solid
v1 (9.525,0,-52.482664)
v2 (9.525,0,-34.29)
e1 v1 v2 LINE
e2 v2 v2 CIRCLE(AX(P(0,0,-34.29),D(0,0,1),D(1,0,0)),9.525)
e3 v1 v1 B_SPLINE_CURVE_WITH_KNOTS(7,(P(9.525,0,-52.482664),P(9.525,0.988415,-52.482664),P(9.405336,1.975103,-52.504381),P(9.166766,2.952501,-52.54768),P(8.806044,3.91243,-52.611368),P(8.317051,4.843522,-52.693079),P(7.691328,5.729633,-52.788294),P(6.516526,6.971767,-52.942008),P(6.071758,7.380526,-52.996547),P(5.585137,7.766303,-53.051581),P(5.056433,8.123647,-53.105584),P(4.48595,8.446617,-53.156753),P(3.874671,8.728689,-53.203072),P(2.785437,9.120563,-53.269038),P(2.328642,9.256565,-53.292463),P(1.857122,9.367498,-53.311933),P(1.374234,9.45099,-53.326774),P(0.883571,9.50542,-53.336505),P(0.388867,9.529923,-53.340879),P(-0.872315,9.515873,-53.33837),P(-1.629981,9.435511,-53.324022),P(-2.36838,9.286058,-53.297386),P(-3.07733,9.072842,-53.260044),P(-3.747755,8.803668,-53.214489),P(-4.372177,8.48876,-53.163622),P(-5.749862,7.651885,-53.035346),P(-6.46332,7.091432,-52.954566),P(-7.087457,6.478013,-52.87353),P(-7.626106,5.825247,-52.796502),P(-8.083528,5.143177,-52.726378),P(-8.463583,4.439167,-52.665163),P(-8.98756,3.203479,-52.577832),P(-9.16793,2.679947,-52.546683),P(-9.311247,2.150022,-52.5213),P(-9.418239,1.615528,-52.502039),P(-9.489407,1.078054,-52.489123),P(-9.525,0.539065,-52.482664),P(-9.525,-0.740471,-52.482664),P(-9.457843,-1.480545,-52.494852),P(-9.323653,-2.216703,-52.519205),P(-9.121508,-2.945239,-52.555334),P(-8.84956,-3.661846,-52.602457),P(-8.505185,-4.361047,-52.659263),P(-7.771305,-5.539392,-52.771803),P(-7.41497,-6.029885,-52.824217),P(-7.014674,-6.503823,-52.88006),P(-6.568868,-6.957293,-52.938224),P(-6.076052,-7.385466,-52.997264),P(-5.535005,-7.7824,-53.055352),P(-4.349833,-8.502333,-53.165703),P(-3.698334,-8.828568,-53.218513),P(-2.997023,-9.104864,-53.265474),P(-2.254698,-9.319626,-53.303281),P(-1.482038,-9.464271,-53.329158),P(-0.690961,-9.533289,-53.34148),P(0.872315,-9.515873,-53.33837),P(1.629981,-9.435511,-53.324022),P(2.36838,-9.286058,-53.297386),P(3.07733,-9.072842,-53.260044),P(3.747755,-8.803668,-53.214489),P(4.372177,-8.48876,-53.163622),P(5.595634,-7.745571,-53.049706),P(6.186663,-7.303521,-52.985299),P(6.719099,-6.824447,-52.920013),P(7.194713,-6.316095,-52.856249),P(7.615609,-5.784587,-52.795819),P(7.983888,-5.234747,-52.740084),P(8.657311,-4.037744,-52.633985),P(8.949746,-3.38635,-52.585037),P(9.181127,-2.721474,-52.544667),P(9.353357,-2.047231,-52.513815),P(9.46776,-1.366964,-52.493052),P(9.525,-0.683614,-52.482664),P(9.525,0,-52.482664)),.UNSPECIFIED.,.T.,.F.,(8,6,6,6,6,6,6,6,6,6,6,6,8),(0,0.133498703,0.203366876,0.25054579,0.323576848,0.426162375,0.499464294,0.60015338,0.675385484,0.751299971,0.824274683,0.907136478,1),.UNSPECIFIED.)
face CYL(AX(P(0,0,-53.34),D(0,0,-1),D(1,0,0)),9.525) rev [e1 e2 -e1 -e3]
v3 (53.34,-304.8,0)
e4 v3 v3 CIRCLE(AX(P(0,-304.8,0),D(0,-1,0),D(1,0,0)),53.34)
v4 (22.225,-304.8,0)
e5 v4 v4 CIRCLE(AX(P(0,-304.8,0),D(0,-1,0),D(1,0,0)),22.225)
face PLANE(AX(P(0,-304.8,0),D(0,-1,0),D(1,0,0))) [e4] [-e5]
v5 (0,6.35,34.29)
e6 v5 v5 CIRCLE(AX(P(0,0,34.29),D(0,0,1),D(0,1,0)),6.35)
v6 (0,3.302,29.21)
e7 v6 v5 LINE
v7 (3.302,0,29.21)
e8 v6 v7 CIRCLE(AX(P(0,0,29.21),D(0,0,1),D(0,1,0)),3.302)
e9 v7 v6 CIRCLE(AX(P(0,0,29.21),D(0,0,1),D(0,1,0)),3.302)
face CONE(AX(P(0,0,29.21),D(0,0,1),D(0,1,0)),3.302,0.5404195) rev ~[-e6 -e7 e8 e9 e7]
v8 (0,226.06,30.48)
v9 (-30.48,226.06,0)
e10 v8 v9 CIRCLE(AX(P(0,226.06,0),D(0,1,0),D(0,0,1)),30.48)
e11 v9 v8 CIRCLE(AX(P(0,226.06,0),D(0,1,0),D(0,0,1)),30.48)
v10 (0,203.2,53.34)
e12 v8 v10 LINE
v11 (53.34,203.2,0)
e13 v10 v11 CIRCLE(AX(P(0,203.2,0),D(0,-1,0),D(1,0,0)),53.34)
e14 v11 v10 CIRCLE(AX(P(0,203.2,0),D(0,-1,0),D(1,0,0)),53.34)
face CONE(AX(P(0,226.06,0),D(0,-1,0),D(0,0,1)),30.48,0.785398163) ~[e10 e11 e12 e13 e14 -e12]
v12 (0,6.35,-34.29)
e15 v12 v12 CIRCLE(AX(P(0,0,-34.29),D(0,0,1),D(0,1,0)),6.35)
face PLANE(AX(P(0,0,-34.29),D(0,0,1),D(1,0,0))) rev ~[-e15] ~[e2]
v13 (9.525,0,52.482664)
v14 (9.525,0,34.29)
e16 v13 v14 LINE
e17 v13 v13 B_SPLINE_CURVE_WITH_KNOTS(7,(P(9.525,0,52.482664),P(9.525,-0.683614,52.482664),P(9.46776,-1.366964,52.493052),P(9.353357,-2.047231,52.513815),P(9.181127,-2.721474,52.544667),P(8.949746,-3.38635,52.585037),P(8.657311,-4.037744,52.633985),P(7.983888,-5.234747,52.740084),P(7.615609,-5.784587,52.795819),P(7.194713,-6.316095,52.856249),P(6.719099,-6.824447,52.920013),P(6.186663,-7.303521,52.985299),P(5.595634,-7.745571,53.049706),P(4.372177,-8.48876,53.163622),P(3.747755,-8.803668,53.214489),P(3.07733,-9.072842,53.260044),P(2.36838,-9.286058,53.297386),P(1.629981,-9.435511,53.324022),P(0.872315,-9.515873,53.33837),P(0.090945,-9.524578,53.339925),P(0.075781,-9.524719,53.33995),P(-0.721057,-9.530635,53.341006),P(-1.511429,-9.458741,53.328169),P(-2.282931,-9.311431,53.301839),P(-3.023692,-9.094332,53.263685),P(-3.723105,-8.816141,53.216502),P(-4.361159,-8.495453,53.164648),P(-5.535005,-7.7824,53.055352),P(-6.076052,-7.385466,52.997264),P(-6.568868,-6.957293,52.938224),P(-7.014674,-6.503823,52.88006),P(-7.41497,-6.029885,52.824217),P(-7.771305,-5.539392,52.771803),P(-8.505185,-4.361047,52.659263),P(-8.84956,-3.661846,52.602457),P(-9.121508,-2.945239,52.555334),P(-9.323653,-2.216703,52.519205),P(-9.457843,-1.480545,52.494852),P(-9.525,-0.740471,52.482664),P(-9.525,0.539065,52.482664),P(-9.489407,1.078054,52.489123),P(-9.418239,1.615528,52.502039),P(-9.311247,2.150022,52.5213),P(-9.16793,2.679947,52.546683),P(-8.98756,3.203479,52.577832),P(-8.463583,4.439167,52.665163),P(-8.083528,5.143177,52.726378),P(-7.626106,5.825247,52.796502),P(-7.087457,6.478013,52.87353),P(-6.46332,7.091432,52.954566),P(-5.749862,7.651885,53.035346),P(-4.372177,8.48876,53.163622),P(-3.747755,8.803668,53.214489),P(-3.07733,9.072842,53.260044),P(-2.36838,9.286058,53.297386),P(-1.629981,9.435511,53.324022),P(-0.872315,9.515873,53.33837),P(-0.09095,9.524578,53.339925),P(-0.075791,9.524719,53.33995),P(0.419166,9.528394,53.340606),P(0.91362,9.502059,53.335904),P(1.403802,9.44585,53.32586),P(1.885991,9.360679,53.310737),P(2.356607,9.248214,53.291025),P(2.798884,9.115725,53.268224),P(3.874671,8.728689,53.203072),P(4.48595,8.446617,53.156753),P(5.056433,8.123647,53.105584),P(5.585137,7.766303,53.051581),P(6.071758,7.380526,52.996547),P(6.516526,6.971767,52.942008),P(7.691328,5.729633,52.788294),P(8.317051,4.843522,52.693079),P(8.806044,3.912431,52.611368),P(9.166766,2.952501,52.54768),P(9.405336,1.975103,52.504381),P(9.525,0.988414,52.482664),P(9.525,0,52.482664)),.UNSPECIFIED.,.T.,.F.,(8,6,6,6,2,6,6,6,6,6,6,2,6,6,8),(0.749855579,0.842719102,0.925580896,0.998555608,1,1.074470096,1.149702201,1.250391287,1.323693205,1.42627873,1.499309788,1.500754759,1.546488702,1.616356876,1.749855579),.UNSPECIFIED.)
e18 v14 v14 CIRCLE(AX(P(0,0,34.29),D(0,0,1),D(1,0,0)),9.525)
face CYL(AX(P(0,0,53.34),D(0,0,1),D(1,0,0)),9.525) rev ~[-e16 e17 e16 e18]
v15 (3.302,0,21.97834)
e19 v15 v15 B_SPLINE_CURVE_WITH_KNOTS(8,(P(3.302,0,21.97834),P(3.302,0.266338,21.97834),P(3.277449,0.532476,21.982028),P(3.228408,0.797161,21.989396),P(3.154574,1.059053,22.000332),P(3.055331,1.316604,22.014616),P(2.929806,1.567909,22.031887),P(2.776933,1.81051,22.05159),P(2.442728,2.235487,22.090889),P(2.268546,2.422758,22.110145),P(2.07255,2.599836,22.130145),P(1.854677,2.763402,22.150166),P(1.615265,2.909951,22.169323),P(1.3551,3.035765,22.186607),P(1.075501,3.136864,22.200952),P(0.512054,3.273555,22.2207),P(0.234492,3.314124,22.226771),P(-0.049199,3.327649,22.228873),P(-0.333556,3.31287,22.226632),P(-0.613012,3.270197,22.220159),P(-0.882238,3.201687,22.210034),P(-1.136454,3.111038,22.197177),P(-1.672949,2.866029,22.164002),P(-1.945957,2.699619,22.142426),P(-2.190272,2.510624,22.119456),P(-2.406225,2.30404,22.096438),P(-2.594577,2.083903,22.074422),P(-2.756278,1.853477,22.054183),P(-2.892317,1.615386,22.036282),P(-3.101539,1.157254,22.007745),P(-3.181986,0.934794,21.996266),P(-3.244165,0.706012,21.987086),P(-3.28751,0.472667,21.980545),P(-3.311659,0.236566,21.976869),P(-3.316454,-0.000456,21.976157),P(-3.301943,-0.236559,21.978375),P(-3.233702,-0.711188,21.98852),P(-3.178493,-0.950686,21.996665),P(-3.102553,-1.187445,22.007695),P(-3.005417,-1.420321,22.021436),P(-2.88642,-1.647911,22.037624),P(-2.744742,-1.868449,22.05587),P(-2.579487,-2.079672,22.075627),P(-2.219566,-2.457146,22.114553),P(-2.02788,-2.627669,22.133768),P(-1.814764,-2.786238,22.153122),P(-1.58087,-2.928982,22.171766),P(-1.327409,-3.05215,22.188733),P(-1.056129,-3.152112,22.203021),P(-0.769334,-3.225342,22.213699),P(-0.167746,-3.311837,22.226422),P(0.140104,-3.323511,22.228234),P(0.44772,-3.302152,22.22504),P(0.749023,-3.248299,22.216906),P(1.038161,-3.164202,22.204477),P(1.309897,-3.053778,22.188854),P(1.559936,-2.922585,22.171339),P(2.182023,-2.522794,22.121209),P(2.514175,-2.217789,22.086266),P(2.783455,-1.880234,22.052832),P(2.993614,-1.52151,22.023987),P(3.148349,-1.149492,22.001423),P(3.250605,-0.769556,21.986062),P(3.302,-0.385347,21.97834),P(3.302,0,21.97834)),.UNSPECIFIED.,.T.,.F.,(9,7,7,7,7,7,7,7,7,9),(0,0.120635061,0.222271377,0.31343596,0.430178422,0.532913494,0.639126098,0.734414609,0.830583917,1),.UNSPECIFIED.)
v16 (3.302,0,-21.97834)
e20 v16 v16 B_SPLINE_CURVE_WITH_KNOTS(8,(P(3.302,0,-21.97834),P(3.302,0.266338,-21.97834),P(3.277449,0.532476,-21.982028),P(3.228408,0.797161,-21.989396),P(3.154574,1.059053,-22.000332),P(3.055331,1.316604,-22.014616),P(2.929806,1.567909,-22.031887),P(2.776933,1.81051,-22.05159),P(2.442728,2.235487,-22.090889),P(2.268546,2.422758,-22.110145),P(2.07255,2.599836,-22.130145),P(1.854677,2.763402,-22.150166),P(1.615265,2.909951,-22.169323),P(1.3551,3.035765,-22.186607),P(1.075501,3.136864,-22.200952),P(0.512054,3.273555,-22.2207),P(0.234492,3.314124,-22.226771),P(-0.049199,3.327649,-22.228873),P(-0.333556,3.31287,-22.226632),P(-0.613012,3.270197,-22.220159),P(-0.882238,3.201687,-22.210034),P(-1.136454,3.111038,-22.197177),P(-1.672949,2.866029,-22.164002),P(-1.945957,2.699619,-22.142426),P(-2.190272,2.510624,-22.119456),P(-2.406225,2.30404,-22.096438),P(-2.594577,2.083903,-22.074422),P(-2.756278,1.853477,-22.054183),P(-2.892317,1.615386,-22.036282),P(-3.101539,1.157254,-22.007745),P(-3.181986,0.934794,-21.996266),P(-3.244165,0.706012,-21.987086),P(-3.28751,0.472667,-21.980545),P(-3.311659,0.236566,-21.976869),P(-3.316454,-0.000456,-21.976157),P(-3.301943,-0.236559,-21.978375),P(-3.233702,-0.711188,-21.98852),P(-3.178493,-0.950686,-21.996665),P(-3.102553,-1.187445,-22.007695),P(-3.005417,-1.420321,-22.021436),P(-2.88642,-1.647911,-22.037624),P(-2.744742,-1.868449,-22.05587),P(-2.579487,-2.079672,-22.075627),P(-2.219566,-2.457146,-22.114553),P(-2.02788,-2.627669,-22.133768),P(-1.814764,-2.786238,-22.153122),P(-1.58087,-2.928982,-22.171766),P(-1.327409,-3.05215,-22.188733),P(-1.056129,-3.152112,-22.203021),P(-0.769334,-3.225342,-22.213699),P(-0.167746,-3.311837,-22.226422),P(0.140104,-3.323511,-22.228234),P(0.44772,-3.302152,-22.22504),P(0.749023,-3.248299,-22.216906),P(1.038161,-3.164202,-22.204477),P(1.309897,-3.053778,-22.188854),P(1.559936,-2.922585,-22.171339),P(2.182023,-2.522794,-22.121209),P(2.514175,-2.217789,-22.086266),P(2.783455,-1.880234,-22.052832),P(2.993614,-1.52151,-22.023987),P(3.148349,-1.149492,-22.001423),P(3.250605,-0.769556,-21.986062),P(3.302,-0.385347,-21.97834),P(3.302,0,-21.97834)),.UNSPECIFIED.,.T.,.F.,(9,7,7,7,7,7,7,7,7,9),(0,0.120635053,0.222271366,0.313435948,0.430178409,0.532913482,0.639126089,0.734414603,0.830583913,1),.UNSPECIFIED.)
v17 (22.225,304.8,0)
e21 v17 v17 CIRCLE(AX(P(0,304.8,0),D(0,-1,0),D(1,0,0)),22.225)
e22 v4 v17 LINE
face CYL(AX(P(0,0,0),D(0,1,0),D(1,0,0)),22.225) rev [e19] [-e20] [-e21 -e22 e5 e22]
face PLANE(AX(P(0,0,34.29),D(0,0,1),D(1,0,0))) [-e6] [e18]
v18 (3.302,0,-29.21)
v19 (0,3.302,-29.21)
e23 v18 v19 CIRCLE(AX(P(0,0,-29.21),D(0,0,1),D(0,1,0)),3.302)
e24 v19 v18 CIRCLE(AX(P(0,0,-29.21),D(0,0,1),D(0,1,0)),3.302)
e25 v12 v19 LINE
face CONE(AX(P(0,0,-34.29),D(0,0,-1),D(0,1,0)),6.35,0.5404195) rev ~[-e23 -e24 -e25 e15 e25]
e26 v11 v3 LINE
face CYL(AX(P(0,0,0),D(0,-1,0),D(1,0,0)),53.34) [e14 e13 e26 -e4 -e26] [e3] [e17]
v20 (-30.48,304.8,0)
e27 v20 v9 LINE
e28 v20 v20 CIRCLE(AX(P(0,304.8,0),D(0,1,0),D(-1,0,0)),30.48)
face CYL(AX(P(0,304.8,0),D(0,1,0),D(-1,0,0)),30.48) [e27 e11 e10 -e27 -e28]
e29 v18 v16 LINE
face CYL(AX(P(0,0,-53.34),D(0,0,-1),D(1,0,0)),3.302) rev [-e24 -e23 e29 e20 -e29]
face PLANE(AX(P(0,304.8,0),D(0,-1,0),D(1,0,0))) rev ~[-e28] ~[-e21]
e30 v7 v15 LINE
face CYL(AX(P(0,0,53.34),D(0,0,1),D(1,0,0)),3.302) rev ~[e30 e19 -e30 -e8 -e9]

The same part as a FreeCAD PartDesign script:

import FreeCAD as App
import Part
import Sketcher

V = App.Vector
Q = App.Units.Quantity


def add_polygon(sketch, points):
    """Adds a closed chain of lines whose ends are joined by coincident constraints."""
    first, n = sketch.GeometryCount, len(points)
    for a, b in zip(points, points[1:] + points[:1]):
        sketch.addGeometry(Part.LineSegment(App.Vector(*a, 0), App.Vector(*b, 0)), False)
    for i in range(n):
        sketch.addConstraint(Sketcher.Constraint("Coincident", first + i, 2, first + (i + 1) % n, 1))

doc = App.newDocument("Part")
body = doc.addObject("PartDesign::Body", "Body")

# Sketch on XZ plane
sketch1 = body.newObject("Sketcher::SketchObject", "Sketch")
sketch1.AttachmentSupport = (doc.getObject("XZ_Plane"), [""])
sketch1.MapMode = "FlatFace"
sketch1.addGeometry(Part.Circle(V(0, 0, 0), V(0, 0, 1), 53), False)
sketch1.addGeometry(Part.Circle(V(0, 0, 0), V(0, 0, 1), 22), False)
sketch1.addConstraint(Sketcher.Constraint("Coincident", 0, 3, -1, 1))
sketch1.addConstraint(Sketcher.Constraint("Coincident", 1, 3, -1, 1))
sketch1.addConstraint(Sketcher.Constraint("Diameter", 0, Q("4.2 in")))
sketch1.addConstraint(Sketcher.Constraint("Diameter", 1, Q("1.75 in")))
pad1 = body.newObject("PartDesign::Pad", "Pad")
pad1.Profile = sketch1
pad1.Length = Q("24 in")
pad1.Midplane = True

# Sketch on XZ plane
sketch2 = body.newObject("Sketcher::SketchObject", "Sketch001")
sketch2.AttachmentSupport = (doc.getObject("XZ_Plane"), [""])
sketch2.MapMode = "FlatFace"
sketch2.AttachmentOffset = App.Placement(V(0, 0, -12 * 25.4), App.Rotation())
sketch2.addGeometry(Part.Circle(V(0, 0, 0), V(0, 0, 1), 53), False)
sketch2.addGeometry(Part.Circle(V(0, 0, 0), V(0, 0, 1), 30), False)
sketch2.addConstraint(Sketcher.Constraint("Coincident", 0, 3, -1, 1))
sketch2.addConstraint(Sketcher.Constraint("Coincident", 1, 3, -1, 1))
sketch2.addConstraint(Sketcher.Constraint("Diameter", 0, Q("4.2 in")))
sketch2.addConstraint(Sketcher.Constraint("Diameter", 1, Q("2.4 in")))
pocket1 = body.newObject("PartDesign::Pocket", "Pocket")
pocket1.Profile = sketch2
pocket1.Length = Q("4 in")
pocket1.Reversed = True

# Sketch on YZ plane
sketch3 = body.newObject("Sketcher::SketchObject", "Sketch002")
sketch3.AttachmentSupport = (doc.getObject("YZ_Plane"), [""])
sketch3.MapMode = "FlatFace"
add_polygon(sketch3, [(203, 53), (203, 30), (226, 30)])  # lines 0-2
sketch3.addConstraint(Sketcher.Constraint("Vertical", 0))
sketch3.addConstraint(Sketcher.Constraint("Horizontal", 1))
sketch3.addConstraint(Sketcher.Constraint("Equal", 1, 0))
sketch3.addConstraint(Sketcher.Constraint("DistanceX", 1, 1, 1, 2, Q("0.9 in")))
sketch3.addConstraint(Sketcher.Constraint("DistanceX", -1, 1, 0, 2, Q("8 in")))
sketch3.addConstraint(Sketcher.Constraint("DistanceY", -1, 1, 0, 2, Q("1.2 in")))
revolution = body.newObject("PartDesign::Revolution", "Revolution")
revolution.Profile = sketch3
revolution.ReferenceAxis = (sketch3, ["H_Axis"])
revolution.Angle = 360

# Sketch on XY plane
sketch4 = body.newObject("Sketcher::SketchObject", "Sketch003")
sketch4.AttachmentSupport = (doc.getObject("XY_Plane"), [""])
sketch4.MapMode = "FlatFace"
sketch4.AttachmentOffset = App.Placement(V(0, 0, 2.1 * 25.4), App.Rotation())
sketch4.addGeometry(Part.Circle(V(0, 0, 0), V(0, 0, 1), 10), False)
sketch4.addConstraint(Sketcher.Constraint("Coincident", 0, 3, -1, 1))
sketch4.addConstraint(Sketcher.Constraint("Diameter", 0, Q("0.75 in")))
pocket2 = body.newObject("PartDesign::Pocket", "Pocket001")
pocket2.Profile = sketch4
pocket2.Length = Q("0.75 in")

# Sketch on XY plane
sketch5 = body.newObject("Sketcher::SketchObject", "Sketch004")
sketch5.AttachmentSupport = (doc.getObject("XY_Plane"), [""])
sketch5.MapMode = "FlatFace"
sketch5.AttachmentOffset = App.Placement(V(0, 0, 2.1 * 25.4), App.Rotation())
sketch5.addGeometry(Part.Circle(V(0, 0, 0), V(0, 0, 1), 3.3), False)
sketch5.addConstraint(Sketcher.Constraint("Coincident", 0, 3, -1, 1))
sketch5.addConstraint(Sketcher.Constraint("Diameter", 0, Q("0.26 in")))
pocket3 = body.newObject("PartDesign::Pocket", "Pocket002")
pocket3.Profile = sketch5
pocket3.Length = 32.36166

# Sketch on XY plane
sketch6 = body.newObject("Sketcher::SketchObject", "Sketch005")
sketch6.AttachmentSupport = (doc.getObject("XY_Plane"), [""])
sketch6.MapMode = "FlatFace"
sketch6.AttachmentOffset = App.Placement(V(0, 0, -2.1 * 25.4), App.Rotation())
sketch6.addGeometry(Part.Circle(V(0, 0, 0), V(0, 0, 1), 10), False)
sketch6.addConstraint(Sketcher.Constraint("Coincident", 0, 3, -1, 1))
sketch6.addConstraint(Sketcher.Constraint("Diameter", 0, Q("0.75 in")))
pocket4 = body.newObject("PartDesign::Pocket", "Pocket003")
pocket4.Profile = sketch6
pocket4.Length = Q("0.75 in")
pocket4.Reversed = True

# Sketch on XY plane
sketch7 = body.newObject("Sketcher::SketchObject", "Sketch006")
sketch7.AttachmentSupport = (doc.getObject("XY_Plane"), [""])
sketch7.MapMode = "FlatFace"
sketch7.AttachmentOffset = App.Placement(V(0, 0, -2.1 * 25.4), App.Rotation())
sketch7.addGeometry(Part.Circle(V(0, 0, 0), V(0, 0, 1), 3.3), False)
sketch7.addConstraint(Sketcher.Constraint("Coincident", 0, 3, -1, 1))
sketch7.addConstraint(Sketcher.Constraint("Diameter", 0, Q("0.26 in")))
pocket5 = body.newObject("PartDesign::Pocket", "Pocket004")
pocket5.Profile = sketch7
pocket5.Length = 32.36166
pocket5.Reversed = True

# Sketch on YZ plane
sketch8 = body.newObject("Sketcher::SketchObject", "Sketch007")
sketch8.AttachmentSupport = (doc.getObject("YZ_Plane"), [""])
sketch8.MapMode = "FlatFace"
add_polygon(sketch8, [(6.3, 34.3), (3.3, 34.3), (3.3, 29.2)])  # lines 0-2
add_polygon(sketch8, [(6.3, -34.3), (3.3, -29.2), (3.3, -34.3)])  # lines 3-5
sketch8.addConstraint(Sketcher.Constraint("Horizontal", 0))
sketch8.addConstraint(Sketcher.Constraint("Vertical", 1))
sketch8.addConstraint(Sketcher.Constraint("Vertical", 4))
sketch8.addConstraint(Sketcher.Constraint("Horizontal", 5))
sketch8.addConstraint(Sketcher.Constraint("Symmetric", 1, 2, 3, 2, -1))
sketch8.addConstraint(Sketcher.Constraint("Symmetric", 2, 2, 5, 2, -1))
sketch8.addConstraint(Sketcher.Constraint("DistanceY", 1, 2, 1, 1, Q("0.2 in")))
sketch8.addConstraint(Sketcher.Constraint("DistanceX", 0, 2, 0, 1, Q("0.12 in")))
sketch8.addConstraint(Sketcher.Constraint("DistanceY", 3, 2, 1, 2, Q("2.3 in")))
sketch8.addConstraint(Sketcher.Constraint("DistanceX", -1, 1, 0, 2, Q("0.13 in")))
groove = body.newObject("PartDesign::Groove", "Groove")
groove.Profile = sketch8
groove.ReferenceAxis = (sketch8, ["V_Axis"])
groove.Angle = 360

doc.recompute()
